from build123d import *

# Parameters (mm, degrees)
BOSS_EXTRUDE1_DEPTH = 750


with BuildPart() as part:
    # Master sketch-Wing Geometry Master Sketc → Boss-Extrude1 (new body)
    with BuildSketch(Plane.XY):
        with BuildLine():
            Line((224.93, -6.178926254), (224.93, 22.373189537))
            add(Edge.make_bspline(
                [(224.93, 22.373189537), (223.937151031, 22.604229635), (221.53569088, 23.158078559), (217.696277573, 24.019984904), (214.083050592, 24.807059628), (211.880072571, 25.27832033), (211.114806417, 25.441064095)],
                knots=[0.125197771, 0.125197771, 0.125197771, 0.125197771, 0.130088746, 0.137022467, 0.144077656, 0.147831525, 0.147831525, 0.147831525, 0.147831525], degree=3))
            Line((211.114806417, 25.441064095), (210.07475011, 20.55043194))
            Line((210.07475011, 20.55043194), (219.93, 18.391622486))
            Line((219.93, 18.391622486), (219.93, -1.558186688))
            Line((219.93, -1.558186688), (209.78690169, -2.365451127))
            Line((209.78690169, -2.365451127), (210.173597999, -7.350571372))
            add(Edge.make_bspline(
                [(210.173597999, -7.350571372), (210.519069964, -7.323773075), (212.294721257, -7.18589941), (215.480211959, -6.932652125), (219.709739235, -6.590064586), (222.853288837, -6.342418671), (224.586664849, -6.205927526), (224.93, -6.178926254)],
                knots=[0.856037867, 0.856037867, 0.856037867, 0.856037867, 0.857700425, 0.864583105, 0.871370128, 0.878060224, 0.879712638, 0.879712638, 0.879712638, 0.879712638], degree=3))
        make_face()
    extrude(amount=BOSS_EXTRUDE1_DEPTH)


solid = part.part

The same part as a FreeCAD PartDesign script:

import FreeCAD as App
import Part
import Sketcher
Q = App.Units.Quantity

doc = App.newDocument("Part")
params = doc.addObject("Spreadsheet::Sheet", "Params")
for row, (alias, value) in enumerate([
    ("sketch1_length", "5 mm"),
    ("pad1_length", "750 mm"),
], start=1):
    params.set(f"A{row}", alias)
    params.set(f"B{row}", "=" + value)
    params.setAlias(f"B{row}", alias)

body = doc.addObject("PartDesign::Body", "Body")

sketch1 = body.newObject("Sketcher::SketchObject", "Sketch")
sketch1.AttachmentSupport = (doc.getObject("XY_Plane"), [""])
sketch1.MapMode = "FlatFace"
sketch1.addGeometry([
    Part.LineSegment(App.Vector(224.93, -6.178926, 0), App.Vector(224.93, 22.37319, 0)),
    Part.BSplineCurve([App.Vector(224.93, 22.37319, 0), App.Vector(223.937151, 22.60423, 0), App.Vector(221.535691, 23.158079, 0), App.Vector(217.696278, 24.019985, 0), App.Vector(214.083051, 24.80706, 0), App.Vector(211.880073, 25.27832, 0), App.Vector(211.114806, 25.441064, 0)], [4, 1, 1, 1, 4], [0.125197771, 0.130088746, 0.137022467, 0.144077656, 0.147831525], False, 3, [1, 1, 1, 1, 1, 1, 1], False),
    Part.LineSegment(App.Vector(211.114806, 25.441064, 0), App.Vector(210.07475, 20.550432, 0)),
    Part.LineSegment(App.Vector(210.07475, 20.550432, 0), App.Vector(219.93, 18.391622, 0)),
    Part.LineSegment(App.Vector(219.93, 18.391622, 0), App.Vector(219.93, -1.558187, 0)),
    Part.LineSegment(App.Vector(219.93, -1.558187, 0), App.Vector(209.786902, -2.365451, 0)),
    Part.LineSegment(App.Vector(209.786902, -2.365451, 0), App.Vector(210.173598, -7.350571, 0)),
    Part.BSplineCurve([App.Vector(210.173598, -7.350571, 0), App.Vector(210.51907, -7.323773, 0), App.Vector(212.294721, -7.185899, 0), App.Vector(215.480212, -6.932652, 0), App.Vector(219.709739, -6.590065, 0), App.Vector(222.853289, -6.342419, 0), App.Vector(224.586665, -6.205928, 0), App.Vector(224.93, -6.178926, 0)], [4, 1, 1, 1, 1, 4], [0.856037867, 0.857700425, 0.864583105, 0.871370128, 0.878060224, 0.879712638], False, 3, [1, 1, 1, 1, 1, 1, 1, 1], False),
], False)
sketch1.addConstraint([
    Sketcher.Constraint("Block", 1),
    Sketcher.Constraint("Block", 7),
    Sketcher.Constraint("Coincident", 0, 2, 1, 1),
    Sketcher.Constraint("Coincident", 1, 2, 2, 1),
    Sketcher.Constraint("Coincident", 2, 2, 3, 1),
    Sketcher.Constraint("Coincident", 3, 2, 4, 1),
    Sketcher.Constraint("Coincident", 4, 2, 5, 1),
    Sketcher.Constraint("Coincident", 5, 2, 6, 1),
    Sketcher.Constraint("Coincident", 6, 2, 7, 1),
    Sketcher.Constraint("Coincident", 7, 2, 0, 1),
    Sketcher.Constraint("Vertical", 4),
    Sketcher.Constraint("Distance", 2, Q("5 mm")),
    Sketcher.Constraint("DistanceX", 3, 2, 0, 2, Q("5 mm")),
    Sketcher.Constraint("DistanceY", 4, 2, 4, 1, Q("19.949809 mm")),
    Sketcher.Constraint("DistanceX", -1, 1, 5, 2, Q("209.786902 mm")),
    Sketcher.Constraint("Distance", 5, Q("10.175172 mm")),
    Sketcher.Constraint("DistanceX", -1, 1, 2, 2, Q("210.07475 mm")),
    Sketcher.Constraint("DistanceY", 5, 2, -1, 1, Q("2.365451 mm")),
])
sketch1.setExpression("Constraints[11]", "Params.sketch1_length")
pad1 = body.newObject("PartDesign::Pad", "Pad")
pad1.Profile = sketch1
pad1.setExpression("Length", "Params.pad1_length")

doc.recompute()
